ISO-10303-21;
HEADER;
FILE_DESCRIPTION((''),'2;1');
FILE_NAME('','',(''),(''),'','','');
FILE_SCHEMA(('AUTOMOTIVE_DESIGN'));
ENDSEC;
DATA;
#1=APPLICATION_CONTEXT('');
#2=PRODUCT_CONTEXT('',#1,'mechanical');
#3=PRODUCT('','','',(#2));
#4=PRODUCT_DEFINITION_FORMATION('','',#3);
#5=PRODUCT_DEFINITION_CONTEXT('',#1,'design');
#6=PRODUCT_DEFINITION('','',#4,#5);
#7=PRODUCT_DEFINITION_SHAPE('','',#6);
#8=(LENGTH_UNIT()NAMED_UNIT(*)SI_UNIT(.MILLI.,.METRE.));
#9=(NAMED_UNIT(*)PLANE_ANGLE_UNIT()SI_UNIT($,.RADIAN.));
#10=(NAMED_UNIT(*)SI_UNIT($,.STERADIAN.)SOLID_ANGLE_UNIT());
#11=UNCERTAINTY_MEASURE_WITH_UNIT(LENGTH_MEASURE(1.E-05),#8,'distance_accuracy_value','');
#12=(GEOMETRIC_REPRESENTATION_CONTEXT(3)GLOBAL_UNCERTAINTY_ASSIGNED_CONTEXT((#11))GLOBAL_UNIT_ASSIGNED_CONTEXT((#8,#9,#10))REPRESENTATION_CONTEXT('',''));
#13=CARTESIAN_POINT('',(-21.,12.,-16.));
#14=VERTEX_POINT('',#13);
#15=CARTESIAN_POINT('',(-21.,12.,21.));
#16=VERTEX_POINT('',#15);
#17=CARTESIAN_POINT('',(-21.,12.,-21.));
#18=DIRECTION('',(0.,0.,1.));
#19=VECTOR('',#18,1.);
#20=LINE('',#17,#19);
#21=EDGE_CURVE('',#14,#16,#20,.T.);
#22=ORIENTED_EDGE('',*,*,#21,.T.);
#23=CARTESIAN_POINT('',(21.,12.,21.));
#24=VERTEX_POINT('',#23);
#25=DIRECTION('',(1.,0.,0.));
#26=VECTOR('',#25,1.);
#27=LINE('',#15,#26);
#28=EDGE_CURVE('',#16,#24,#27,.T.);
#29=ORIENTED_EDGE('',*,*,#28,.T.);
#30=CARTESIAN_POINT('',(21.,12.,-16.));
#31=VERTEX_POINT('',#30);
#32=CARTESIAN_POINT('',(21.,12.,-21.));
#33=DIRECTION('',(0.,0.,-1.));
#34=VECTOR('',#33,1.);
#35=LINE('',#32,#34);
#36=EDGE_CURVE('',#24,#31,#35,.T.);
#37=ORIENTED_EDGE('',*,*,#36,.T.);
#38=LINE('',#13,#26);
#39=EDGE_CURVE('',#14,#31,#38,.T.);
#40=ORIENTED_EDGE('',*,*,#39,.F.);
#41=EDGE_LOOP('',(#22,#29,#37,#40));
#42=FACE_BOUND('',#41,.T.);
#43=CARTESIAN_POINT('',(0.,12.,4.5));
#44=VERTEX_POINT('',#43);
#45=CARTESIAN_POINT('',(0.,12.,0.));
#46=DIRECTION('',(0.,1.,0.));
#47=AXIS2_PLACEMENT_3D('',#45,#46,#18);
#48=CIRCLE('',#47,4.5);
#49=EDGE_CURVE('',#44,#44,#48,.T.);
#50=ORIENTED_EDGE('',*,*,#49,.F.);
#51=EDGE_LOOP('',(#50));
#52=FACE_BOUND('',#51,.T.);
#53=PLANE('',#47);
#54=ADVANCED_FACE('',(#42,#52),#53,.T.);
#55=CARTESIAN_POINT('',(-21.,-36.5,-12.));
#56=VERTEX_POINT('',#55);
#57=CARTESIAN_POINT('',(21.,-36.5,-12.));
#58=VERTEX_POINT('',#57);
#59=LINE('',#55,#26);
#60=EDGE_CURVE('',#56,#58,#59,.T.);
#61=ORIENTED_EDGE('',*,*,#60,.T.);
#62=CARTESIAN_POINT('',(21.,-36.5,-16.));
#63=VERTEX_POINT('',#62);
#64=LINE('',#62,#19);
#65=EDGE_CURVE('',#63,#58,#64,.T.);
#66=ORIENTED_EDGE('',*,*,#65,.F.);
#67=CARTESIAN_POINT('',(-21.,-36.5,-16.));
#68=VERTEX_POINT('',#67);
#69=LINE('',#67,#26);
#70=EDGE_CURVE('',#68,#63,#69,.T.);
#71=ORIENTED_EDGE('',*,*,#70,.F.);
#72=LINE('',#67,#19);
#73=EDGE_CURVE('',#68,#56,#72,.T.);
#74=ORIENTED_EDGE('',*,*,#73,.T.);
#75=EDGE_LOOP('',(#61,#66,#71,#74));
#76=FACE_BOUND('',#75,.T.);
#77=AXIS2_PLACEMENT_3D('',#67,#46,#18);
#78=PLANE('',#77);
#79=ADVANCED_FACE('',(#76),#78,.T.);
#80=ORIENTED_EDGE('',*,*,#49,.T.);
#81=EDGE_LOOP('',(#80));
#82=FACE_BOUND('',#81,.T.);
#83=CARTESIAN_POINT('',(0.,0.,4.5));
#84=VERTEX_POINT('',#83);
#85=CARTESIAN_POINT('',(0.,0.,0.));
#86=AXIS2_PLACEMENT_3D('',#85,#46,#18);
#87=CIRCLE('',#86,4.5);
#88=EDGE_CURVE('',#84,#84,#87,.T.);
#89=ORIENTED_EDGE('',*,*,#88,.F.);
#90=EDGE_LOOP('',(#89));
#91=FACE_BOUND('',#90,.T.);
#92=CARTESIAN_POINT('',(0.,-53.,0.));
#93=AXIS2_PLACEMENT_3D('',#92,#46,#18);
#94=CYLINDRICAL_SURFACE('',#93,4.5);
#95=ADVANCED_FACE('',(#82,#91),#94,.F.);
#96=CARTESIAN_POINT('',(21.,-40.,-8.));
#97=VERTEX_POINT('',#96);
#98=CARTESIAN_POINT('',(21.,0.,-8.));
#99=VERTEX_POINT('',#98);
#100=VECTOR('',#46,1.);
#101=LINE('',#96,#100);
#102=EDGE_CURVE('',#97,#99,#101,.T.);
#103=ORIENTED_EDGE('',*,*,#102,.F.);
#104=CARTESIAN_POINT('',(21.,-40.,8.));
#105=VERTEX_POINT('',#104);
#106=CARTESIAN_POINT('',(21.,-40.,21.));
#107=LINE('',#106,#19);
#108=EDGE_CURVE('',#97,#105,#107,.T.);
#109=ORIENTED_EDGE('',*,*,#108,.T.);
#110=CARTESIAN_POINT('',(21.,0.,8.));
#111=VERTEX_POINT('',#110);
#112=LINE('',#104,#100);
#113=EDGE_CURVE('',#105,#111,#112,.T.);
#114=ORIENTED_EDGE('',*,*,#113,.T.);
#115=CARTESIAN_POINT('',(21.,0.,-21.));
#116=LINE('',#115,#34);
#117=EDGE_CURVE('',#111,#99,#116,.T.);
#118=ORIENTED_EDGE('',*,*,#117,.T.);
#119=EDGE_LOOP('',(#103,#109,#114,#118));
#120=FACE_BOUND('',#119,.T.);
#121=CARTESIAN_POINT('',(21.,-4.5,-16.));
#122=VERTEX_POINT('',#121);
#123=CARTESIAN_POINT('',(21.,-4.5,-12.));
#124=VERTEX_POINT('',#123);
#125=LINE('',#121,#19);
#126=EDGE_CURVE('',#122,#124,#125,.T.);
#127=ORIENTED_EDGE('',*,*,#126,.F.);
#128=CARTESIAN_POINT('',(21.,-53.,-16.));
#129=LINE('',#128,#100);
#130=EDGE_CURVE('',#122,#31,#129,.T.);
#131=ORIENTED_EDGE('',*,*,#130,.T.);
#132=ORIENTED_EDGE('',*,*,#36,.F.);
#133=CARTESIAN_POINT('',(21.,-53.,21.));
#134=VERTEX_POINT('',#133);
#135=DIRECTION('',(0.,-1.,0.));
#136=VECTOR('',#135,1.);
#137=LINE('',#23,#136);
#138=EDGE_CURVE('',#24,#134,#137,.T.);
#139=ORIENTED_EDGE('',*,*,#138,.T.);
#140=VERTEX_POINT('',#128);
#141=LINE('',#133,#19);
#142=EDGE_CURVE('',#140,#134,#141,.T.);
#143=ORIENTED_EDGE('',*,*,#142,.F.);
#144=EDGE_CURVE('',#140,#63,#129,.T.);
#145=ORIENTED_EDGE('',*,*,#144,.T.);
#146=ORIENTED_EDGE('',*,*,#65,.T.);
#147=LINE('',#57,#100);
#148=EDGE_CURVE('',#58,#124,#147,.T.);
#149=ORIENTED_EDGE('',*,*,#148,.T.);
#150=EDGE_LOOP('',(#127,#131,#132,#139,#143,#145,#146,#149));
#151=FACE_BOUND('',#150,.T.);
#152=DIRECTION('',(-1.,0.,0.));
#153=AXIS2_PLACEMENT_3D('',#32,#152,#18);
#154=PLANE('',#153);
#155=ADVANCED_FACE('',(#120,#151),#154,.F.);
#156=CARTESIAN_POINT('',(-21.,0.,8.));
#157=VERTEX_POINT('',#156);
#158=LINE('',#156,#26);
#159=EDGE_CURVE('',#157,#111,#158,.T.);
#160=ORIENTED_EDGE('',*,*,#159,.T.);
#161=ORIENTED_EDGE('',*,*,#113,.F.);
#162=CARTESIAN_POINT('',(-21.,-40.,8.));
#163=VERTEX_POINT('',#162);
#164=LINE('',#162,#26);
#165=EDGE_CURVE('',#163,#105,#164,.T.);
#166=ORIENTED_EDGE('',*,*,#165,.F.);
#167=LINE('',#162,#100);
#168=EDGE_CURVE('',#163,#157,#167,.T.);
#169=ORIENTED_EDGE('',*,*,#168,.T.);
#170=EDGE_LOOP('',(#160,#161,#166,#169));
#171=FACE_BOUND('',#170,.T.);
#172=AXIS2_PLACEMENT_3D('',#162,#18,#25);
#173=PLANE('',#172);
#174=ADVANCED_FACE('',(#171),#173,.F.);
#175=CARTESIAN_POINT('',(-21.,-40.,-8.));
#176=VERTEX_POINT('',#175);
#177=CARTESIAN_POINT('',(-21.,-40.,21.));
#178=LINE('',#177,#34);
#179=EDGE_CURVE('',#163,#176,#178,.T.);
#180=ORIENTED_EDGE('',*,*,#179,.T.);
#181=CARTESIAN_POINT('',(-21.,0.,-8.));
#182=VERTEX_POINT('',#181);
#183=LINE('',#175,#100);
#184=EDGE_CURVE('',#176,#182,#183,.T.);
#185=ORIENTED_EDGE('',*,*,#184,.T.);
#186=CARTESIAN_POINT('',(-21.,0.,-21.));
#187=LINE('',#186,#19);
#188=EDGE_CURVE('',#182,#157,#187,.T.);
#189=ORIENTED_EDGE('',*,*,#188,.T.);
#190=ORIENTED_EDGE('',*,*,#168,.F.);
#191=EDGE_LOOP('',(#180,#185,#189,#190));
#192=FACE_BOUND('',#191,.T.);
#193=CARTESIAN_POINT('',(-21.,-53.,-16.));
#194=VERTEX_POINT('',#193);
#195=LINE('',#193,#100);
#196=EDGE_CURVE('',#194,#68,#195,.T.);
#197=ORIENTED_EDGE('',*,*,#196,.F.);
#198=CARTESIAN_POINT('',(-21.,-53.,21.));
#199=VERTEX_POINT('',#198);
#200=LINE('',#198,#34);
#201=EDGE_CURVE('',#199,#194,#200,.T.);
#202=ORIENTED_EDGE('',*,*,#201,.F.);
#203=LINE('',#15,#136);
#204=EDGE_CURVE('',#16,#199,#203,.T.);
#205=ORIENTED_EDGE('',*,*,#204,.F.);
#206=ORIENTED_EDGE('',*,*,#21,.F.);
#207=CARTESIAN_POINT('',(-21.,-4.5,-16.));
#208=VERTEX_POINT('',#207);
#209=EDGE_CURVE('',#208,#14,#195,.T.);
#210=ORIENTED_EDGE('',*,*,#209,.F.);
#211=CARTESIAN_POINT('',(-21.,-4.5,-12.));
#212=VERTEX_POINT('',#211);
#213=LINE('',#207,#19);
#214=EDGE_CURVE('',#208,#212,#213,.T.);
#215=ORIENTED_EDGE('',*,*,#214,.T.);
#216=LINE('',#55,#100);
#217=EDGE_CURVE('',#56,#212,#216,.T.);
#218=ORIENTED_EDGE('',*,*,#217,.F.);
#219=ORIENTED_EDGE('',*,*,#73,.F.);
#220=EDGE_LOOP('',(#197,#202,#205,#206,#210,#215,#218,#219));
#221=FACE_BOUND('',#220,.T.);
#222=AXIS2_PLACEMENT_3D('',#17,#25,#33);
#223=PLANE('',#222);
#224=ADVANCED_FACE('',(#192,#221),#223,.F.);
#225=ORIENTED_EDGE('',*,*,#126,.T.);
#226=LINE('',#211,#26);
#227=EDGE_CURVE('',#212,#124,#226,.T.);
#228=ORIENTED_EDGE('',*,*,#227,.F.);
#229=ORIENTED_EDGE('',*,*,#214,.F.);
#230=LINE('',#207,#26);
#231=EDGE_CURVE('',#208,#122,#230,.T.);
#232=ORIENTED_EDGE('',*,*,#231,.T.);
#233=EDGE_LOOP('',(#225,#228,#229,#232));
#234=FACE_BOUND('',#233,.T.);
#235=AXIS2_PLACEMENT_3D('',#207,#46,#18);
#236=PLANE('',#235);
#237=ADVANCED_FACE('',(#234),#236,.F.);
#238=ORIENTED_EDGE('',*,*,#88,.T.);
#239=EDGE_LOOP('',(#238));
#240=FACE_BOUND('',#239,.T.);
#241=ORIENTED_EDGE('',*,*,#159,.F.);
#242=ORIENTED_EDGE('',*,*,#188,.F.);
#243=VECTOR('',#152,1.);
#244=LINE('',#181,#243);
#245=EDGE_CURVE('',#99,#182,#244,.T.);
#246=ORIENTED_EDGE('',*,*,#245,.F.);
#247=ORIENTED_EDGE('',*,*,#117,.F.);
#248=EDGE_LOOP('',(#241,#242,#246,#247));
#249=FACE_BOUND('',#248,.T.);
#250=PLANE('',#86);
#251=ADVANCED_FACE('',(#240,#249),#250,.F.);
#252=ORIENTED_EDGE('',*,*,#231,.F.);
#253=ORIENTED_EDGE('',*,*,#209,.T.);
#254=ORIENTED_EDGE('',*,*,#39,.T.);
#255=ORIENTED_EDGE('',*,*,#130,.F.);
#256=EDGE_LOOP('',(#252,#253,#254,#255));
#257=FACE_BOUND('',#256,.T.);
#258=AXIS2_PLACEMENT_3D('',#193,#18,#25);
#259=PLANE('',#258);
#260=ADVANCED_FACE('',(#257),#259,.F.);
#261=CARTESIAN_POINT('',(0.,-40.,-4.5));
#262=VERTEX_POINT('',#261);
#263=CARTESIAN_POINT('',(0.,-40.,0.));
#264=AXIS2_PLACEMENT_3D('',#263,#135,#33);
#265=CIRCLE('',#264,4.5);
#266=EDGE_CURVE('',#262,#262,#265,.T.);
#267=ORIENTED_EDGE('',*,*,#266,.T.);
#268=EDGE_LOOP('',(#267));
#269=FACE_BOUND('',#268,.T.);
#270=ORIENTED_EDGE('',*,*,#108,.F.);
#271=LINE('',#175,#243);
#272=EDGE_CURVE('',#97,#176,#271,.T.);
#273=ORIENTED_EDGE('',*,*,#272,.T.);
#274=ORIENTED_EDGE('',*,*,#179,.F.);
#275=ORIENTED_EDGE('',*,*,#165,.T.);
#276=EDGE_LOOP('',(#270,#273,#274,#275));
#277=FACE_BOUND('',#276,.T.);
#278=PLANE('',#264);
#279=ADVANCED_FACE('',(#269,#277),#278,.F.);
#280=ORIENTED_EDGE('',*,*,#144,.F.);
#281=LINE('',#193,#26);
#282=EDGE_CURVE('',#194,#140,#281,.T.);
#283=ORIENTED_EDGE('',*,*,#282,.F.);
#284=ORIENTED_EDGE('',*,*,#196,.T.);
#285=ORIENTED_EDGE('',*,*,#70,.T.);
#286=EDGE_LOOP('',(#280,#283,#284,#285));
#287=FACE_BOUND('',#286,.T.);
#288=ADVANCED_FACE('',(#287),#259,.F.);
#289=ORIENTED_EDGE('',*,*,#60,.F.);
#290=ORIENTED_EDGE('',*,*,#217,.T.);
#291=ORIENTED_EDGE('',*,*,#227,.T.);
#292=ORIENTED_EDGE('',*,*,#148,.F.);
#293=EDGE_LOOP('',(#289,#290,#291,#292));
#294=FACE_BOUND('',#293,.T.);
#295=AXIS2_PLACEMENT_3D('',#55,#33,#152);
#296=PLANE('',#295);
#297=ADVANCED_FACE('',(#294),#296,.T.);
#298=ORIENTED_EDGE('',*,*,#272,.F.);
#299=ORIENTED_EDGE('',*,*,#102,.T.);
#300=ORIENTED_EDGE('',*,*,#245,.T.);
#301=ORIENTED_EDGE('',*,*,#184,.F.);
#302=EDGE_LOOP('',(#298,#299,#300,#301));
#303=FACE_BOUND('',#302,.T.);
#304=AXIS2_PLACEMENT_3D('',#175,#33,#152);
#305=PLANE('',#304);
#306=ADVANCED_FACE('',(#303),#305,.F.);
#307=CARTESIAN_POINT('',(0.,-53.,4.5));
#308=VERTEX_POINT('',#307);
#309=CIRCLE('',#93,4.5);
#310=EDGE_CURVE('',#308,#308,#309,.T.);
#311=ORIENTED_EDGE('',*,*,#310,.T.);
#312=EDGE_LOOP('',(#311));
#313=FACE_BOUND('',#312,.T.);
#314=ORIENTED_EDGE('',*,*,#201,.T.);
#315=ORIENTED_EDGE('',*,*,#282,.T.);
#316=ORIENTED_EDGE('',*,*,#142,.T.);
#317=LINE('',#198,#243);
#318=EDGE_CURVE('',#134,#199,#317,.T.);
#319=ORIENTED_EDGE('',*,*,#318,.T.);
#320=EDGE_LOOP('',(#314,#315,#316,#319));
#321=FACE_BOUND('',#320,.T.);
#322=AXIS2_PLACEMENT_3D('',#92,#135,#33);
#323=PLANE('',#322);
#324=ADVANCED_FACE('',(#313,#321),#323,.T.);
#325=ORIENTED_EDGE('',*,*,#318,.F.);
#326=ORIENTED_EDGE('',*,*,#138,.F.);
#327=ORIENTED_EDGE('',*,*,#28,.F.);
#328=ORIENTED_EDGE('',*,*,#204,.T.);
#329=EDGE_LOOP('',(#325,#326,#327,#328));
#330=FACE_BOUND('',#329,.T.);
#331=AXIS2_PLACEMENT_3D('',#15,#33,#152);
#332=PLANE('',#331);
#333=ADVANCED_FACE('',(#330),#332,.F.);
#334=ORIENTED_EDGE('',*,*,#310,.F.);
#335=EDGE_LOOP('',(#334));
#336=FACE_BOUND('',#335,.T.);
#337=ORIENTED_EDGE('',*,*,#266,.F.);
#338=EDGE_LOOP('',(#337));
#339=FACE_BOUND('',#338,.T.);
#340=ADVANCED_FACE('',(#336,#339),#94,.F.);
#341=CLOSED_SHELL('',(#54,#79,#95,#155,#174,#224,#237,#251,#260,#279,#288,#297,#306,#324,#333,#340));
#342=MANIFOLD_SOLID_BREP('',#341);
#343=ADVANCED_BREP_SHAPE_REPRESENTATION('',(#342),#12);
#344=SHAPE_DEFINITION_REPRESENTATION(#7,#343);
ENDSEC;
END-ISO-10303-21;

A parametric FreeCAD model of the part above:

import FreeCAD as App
import Part
import Sketcher
from FreeCAD import Vector
Q = App.Units.Quantity

doc = App.newDocument("Part")
body = doc.addObject("PartDesign::Body", "Body")

sketch1 = body.newObject("Sketcher::SketchObject", "Sketch")
sketch1.AttachmentSupport = (doc.getObject("XZ_Plane"), [""])
sketch1.MapMode = "FlatFace"
sketch1.addGeometry([
    Part.LineSegment(Vector(-21, -21, 0), Vector(-21, 21, 0)),
    Part.LineSegment(Vector(-21, 21, 0), Vector(21, 21, 0)),
    Part.LineSegment(Vector(21, 21, 0), Vector(21, -21, 0)),
    Part.LineSegment(Vector(21, -21, 0), Vector(-21, -21, 0)),
], False)
sketch1.addConstraint([
    Sketcher.Constraint("Coincident", 0, 2, 1, 1),
    Sketcher.Constraint("Coincident", 1, 2, 2, 1),
    Sketcher.Constraint("Coincident", 2, 2, 3, 1),
    Sketcher.Constraint("Coincident", 3, 2, 0, 1),
    Sketcher.Constraint("Vertical", 0),
    Sketcher.Constraint("Horizontal", 1),
    Sketcher.Constraint("Vertical", 2),
    Sketcher.Constraint("Horizontal", 3),
    Sketcher.Constraint("Symmetric", 0, 2, 2, 2, -1, 1),
    Sketcher.Constraint("Equal", 3, 0),
    Sketcher.Constraint("DistanceX", 1, 1, 1, 2, Q("42 mm")),
])
pad1 = body.newObject("PartDesign::Pad", "Pad")
pad1.Profile = sketch1
pad1.Length = 12
pad1.Reversed = True

sketch2 = body.newObject("Sketcher::SketchObject", "Sketch001")
sketch2.AttachmentSupport = (doc.getObject("XZ_Plane"), [""])
sketch2.MapMode = "FlatFace"
sketch2.addGeometry([
    Part.LineSegment(Vector(-21, -8, 0), Vector(-21, -21, 0)),
    Part.LineSegment(Vector(-21, -21, 0), Vector(21, -21, 0)),
    Part.LineSegment(Vector(21, -21, 0), Vector(21, -8, 0)),
    Part.LineSegment(Vector(21, -8, 0), Vector(-21, -8, 0)),
    Part.LineSegment(Vector(-21, 21, 0), Vector(-21, 8, 0)),
    Part.LineSegment(Vector(-21, 8, 0), Vector(21, 8, 0)),
    Part.LineSegment(Vector(21, 8, 0), Vector(21, 21, 0)),
    Part.LineSegment(Vector(21, 21, 0), Vector(-21, 21, 0)),
], False)
sketch2.addConstraint([
    Sketcher.Constraint("Coincident", 0, 2, 1, 1),
    Sketcher.Constraint("Coincident", 1, 2, 2, 1),
    Sketcher.Constraint("Coincident", 2, 2, 3, 1),
    Sketcher.Constraint("Coincident", 3, 2, 0, 1),
    Sketcher.Constraint("Coincident", 4, 2, 5, 1),
    Sketcher.Constraint("Coincident", 5, 2, 6, 1),
    Sketcher.Constraint("Coincident", 6, 2, 7, 1),
    Sketcher.Constraint("Coincident", 7, 2, 4, 1),
    Sketcher.Constraint("Vertical", 0),
    Sketcher.Constraint("Horizontal", 1),
    Sketcher.Constraint("Vertical", 2),
    Sketcher.Constraint("Horizontal", 3),
    Sketcher.Constraint("Vertical", 4),
    Sketcher.Constraint("Horizontal", 5),
    Sketcher.Constraint("Vertical", 6),
    Sketcher.Constraint("Horizontal", 7),
    Sketcher.Constraint("Symmetric", 2, 2, 4, 2, -1, 1),
    Sketcher.Constraint("Symmetric", 0, 2, 6, 2, -1, 1),
    Sketcher.Constraint("Vertical", 3, 2, 4, 2),
    Sketcher.Constraint("DistanceX", 1, 1, 1, 2, Q("42 mm")),
    Sketcher.Constraint("DistanceY", 0, 2, 0, 1, Q("13 mm")),
    Sketcher.Constraint("DistanceY", 0, 2, -1, 1, Q("21 mm")),
])
pad2 = body.newObject("PartDesign::Pad", "Pad001")
pad2.Profile = sketch2
pad2.Length = 40

sketch3 = body.newObject("Sketcher::SketchObject", "Sketch002")
sketch3.AttachmentSupport = (doc.getObject("XZ_Plane"), [""])
sketch3.MapMode = "FlatFace"
sketch3.AttachmentOffset = App.Placement(Vector(0, 0, 40), App.Rotation())
sketch3.addGeometry([
    Part.LineSegment(Vector(-21, 21, 0), Vector(-21, -21, 0)),
    Part.LineSegment(Vector(-21, -21, 0), Vector(21, -21, 0)),
    Part.LineSegment(Vector(21, -21, 0), Vector(21, 21, 0)),
    Part.LineSegment(Vector(21, 21, 0), Vector(-21, 21, 0)),
], False)
sketch3.addConstraint([
    Sketcher.Constraint("Coincident", 0, 2, 1, 1),
    Sketcher.Constraint("Coincident", 1, 2, 2, 1),
    Sketcher.Constraint("Coincident", 2, 2, 3, 1),
    Sketcher.Constraint("Coincident", 3, 2, 0, 1),
    Sketcher.Constraint("Vertical", 0),
    Sketcher.Constraint("Horizontal", 1),
    Sketcher.Constraint("Vertical", 2),
    Sketcher.Constraint("Horizontal", 3),
    Sketcher.Constraint("Symmetric", 0, 2, 2, 2, -1, 1),
    Sketcher.Constraint("Equal", 3, 0),
    Sketcher.Constraint("DistanceX", 1, 1, 1, 2, Q("42 mm")),
])
pad3 = body.newObject("PartDesign::Pad", "Pad002")
pad3.Profile = sketch3
pad3.Length = 13

sketch4 = body.newObject("Sketcher::SketchObject", "Sketch003")
sketch4.AttachmentSupport = (doc.getObject("XZ_Plane"), [""])
sketch4.MapMode = "FlatFace"
sketch4.AttachmentOffset = App.Placement(Vector(0, 0, -12), App.Rotation())
sketch4.addGeometry(Part.Circle(Vector(0, 0, 0), Vector(0, 0, 1), 4.5), False)
sketch4.addConstraint([
    Sketcher.Constraint("Coincident", 0, 3, -1, 1),
    Sketcher.Constraint("Diameter", 0, Q("9 mm")),
])
pocket1 = body.newObject("PartDesign::Pocket", "Pocket")
pocket1.Profile = sketch4
pocket1.Type = "ThroughAll"
pocket1.Reversed = True

sketch5 = body.newObject("Sketcher::SketchObject", "Sketch004")
sketch5.AttachmentSupport = (doc.getObject("XZ_Plane"), [""])
sketch5.MapMode = "FlatFace"
sketch5.AttachmentOffset = App.Placement(Vector(0, 0, -12), App.Rotation())
sketch5.addGeometry([
    Part.LineSegment(Vector(-21, -21, 0), Vector(-21, -16, 0)),
    Part.LineSegment(Vector(-21, -16, 0), Vector(21, -16, 0)),
    Part.LineSegment(Vector(21, -16, 0), Vector(21, -21, 0)),
    Part.LineSegment(Vector(21, -21, 0), Vector(-21, -21, 0)),
], False)
sketch5.addConstraint([
    Sketcher.Constraint("Coincident", 0, 2, 1, 1),
    Sketcher.Constraint("Coincident", 1, 2, 2, 1),
    Sketcher.Constraint("Coincident", 2, 2, 3, 1),
    Sketcher.Constraint("Coincident", 3, 2, 0, 1),
    Sketcher.Constraint("Vertical", 0),
    Sketcher.Constraint("Horizontal", 1),
    Sketcher.Constraint("Vertical", 2),
    Sketcher.Constraint("Horizontal", 3),
    Sketcher.Constraint("DistanceX", 1, 1, 1, 2, Q("42 mm")),
    Sketcher.Constraint("DistanceY", 0, 1, 0, 2, Q("5 mm")),
    Sketcher.Constraint("DistanceX", 0, 2, -1, 1, Q("21 mm")),
    Sketcher.Constraint("DistanceY", 0, 2, -1, 1, Q("16 mm")),
])
pocket2 = body.newObject("PartDesign::Pocket", "Pocket001")
pocket2.Profile = sketch5
pocket2.Type = "ThroughAll"
pocket2.Reversed = True

sketch6 = body.newObject("Sketcher::SketchObject", "Sketch005")
sketch6.AttachmentSupport = (doc.getObject("YZ_Plane"), [""])
sketch6.MapMode = "FlatFace"
sketch6.AttachmentOffset = App.Placement(Vector(0, 0, 21), App.Rotation())
sketch6.addGeometry([
    Part.LineSegment(Vector(-4.5, -12, 0), Vector(-36.5, -12, 0)),
    Part.LineSegment(Vector(-36.5, -12, 0), Vector(-36.5, -16, 0)),
    Part.LineSegment(Vector(-36.5, -16, 0), Vector(-4.5, -16, 0)),
    Part.LineSegment(Vector(-4.5, -16, 0), Vector(-4.5, -12, 0)),
], False)
sketch6.addConstraint([
    Sketcher.Constraint("Coincident", 0, 2, 1, 1),
    Sketcher.Constraint("Coincident", 1, 2, 2, 1),
    Sketcher.Constraint("Coincident", 2, 2, 3, 1),
    Sketcher.Constraint("Coincident", 3, 2, 0, 1),
    Sketcher.Constraint("Horizontal", 0),
    Sketcher.Constraint("Vertical", 1),
    Sketcher.Constraint("Horizontal", 2),
    Sketcher.Constraint("Vertical", 3),
    Sketcher.Constraint("DistanceX", 0, 2, 0, 1, Q("32 mm")),
    Sketcher.Constraint("DistanceY", 1, 2, 1, 1, Q("4 mm")),
    Sketcher.Constraint("DistanceY", 0, 2, -1, 1, Q("12 mm")),
    Sketcher.Constraint("DistanceX", 0, 2, -1, 1, Q("36.5 mm")),
])
pocket3 = body.newObject("PartDesign::Pocket", "Pocket002")
pocket3.Profile = sketch6
pocket3.Type = "ThroughAll"

doc.recompute()
